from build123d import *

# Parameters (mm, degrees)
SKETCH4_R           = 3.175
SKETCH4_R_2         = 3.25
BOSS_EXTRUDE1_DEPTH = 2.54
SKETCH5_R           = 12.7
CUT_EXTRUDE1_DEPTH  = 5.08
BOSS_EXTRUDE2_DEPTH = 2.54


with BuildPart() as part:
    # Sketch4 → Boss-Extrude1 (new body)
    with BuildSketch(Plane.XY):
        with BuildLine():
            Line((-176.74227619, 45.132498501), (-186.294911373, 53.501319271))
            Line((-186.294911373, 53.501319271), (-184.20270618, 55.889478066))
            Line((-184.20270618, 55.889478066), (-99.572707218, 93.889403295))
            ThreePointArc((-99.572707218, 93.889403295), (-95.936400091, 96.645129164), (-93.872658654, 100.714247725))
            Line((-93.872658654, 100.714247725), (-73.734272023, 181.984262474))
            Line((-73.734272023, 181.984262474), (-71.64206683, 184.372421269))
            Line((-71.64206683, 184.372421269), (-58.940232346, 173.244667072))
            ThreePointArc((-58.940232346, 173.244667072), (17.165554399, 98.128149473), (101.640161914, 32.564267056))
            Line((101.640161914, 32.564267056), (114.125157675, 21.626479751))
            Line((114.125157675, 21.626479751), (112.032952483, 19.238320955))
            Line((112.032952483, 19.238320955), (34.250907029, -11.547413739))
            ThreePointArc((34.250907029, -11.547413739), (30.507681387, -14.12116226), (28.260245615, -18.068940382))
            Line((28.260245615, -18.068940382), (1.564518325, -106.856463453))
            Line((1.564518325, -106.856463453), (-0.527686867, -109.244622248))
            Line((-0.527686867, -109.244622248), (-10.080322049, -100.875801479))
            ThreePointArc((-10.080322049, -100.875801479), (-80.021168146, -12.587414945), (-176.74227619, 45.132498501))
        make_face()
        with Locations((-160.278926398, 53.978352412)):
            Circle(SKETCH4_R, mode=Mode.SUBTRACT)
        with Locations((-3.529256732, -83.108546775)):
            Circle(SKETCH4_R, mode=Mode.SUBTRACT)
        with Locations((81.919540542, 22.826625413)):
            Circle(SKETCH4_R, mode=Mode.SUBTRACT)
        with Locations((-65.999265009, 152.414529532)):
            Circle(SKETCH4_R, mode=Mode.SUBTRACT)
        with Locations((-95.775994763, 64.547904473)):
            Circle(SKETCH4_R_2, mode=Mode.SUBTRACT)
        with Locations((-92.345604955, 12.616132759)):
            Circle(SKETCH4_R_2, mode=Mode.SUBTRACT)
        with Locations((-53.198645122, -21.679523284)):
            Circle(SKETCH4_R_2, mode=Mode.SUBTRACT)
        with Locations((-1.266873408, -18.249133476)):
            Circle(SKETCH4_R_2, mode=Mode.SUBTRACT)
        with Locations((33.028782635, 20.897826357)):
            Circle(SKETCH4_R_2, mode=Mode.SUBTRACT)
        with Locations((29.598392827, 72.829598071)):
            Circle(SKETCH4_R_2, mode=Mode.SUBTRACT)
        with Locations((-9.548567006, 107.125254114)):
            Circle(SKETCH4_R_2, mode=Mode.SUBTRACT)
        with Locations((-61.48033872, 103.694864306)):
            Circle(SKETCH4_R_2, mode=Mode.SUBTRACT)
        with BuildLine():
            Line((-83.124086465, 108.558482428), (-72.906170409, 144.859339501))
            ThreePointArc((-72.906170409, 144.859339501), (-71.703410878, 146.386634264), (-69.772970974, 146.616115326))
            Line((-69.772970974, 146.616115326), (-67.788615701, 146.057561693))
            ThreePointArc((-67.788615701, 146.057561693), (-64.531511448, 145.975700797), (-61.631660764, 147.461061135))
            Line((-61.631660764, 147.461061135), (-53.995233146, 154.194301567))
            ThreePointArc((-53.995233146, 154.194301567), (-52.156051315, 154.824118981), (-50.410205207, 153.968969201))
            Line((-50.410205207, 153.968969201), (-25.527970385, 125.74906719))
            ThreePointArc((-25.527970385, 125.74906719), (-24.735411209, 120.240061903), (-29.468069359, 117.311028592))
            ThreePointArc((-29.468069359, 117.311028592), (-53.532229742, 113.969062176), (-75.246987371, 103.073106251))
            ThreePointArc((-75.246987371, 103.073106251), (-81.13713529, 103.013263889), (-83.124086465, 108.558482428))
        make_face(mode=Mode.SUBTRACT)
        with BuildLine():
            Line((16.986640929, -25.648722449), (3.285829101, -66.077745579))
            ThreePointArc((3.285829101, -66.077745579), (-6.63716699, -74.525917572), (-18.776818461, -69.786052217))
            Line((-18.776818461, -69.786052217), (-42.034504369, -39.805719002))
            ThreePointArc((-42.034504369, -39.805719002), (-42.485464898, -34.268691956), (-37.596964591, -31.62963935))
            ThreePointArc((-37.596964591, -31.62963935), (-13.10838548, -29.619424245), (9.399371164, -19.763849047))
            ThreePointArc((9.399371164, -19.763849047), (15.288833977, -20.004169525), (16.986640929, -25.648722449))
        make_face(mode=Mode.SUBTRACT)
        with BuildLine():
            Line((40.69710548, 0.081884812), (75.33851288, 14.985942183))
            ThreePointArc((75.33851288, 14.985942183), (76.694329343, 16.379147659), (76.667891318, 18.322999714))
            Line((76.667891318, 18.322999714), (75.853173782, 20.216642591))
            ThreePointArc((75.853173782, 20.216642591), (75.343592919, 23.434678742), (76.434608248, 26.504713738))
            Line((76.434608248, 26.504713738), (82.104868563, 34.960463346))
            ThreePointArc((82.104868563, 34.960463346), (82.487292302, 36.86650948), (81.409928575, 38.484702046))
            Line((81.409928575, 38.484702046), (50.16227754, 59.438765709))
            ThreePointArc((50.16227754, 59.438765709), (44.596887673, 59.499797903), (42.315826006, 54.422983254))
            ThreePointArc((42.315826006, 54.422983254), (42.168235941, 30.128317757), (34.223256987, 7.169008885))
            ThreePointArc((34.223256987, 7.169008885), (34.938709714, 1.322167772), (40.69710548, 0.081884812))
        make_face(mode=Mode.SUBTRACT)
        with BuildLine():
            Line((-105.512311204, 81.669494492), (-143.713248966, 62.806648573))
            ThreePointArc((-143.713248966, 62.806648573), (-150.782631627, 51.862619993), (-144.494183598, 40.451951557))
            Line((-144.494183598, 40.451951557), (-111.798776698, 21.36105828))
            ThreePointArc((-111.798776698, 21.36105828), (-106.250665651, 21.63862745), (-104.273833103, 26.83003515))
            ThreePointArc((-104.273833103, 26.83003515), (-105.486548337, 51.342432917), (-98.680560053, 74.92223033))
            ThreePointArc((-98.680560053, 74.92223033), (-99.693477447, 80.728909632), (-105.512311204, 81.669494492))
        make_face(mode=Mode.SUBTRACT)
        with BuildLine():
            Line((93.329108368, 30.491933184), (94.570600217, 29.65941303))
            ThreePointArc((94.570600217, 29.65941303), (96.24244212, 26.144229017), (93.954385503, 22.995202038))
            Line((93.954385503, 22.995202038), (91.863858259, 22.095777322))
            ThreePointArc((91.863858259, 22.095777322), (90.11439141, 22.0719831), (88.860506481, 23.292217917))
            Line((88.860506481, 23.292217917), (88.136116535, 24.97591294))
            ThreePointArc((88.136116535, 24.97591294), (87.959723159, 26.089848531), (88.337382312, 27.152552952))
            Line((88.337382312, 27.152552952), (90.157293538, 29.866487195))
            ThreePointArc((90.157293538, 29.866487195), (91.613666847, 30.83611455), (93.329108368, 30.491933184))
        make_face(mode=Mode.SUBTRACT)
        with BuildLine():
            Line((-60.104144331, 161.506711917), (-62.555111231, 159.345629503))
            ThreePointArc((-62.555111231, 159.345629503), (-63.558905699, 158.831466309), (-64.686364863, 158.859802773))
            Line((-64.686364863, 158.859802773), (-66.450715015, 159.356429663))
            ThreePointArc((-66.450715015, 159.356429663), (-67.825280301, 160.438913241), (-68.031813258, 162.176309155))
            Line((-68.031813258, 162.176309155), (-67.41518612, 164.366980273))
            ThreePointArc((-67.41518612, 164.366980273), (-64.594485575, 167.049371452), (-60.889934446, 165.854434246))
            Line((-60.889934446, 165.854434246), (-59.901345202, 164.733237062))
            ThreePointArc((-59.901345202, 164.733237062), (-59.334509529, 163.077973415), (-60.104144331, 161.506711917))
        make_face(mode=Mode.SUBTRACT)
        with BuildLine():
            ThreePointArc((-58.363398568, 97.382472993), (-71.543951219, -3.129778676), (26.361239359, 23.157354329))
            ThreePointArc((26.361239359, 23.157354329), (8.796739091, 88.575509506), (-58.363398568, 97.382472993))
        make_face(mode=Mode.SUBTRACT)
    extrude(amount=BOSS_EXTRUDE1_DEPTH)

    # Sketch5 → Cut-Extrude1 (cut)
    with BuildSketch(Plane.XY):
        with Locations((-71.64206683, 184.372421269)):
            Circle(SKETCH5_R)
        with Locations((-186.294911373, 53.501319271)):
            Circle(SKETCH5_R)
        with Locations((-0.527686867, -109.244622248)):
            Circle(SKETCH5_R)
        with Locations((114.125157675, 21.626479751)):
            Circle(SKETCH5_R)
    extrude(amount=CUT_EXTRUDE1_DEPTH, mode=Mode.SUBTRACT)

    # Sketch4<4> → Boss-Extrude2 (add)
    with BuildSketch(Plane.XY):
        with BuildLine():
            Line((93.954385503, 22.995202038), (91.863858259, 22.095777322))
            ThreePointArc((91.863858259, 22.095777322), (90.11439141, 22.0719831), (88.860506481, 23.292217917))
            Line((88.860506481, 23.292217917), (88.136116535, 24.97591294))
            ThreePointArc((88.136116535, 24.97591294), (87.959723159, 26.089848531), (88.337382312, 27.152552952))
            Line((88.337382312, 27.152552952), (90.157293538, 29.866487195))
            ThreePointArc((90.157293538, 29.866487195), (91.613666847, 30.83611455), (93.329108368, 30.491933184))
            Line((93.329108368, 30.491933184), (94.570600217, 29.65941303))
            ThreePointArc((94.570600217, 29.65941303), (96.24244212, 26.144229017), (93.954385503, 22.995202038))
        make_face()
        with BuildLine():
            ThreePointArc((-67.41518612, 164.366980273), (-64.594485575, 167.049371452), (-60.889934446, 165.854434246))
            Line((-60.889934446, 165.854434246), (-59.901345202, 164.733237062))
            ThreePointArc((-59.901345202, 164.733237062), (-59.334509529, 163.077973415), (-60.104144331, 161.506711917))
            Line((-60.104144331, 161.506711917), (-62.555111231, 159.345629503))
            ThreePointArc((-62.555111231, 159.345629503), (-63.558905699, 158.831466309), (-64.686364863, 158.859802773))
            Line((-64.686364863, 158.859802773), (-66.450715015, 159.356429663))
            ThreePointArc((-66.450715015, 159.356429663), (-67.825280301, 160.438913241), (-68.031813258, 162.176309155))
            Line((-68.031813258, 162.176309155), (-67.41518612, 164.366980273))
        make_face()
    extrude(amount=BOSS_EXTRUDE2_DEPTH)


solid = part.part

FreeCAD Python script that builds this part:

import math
import FreeCAD as App
import Part
import Sketcher

V = App.Vector
Q = App.Units.Quantity

doc = App.newDocument("Part")
body = doc.addObject("PartDesign::Body", "Body")

# Sketch on XY plane
sketch1 = doc.addObject("Sketcher::SketchObject", "Sketch")
body.addObject(sketch1)
sketch1.AttachmentSupport = (doc.XY_Plane, [""])
sketch1.MapMode = "FlatFace"
sketch1.addGeometry([
    Part.LineSegment(V(-186.294911, 53.501319, 0), V(-176.742276, 45.132499, 0)),  # 0
    Part.ArcOfCircle(Part.Circle(V(-285.728698, -247.393374, 0), V(0, 0, 1), 312.168906), math.radians(27.99234), math.radians(69.566106)),  # 1
    Part.LineSegment(V(-10.080322, -100.875801, 0), V(-0.527687, -109.244622, 0)),  # 2
    Part.LineSegment(V(-0.527687, -109.244622, 0), V(1.564518, -106.856463, 0)),  # 3
    Part.LineSegment(V(1.564518, -106.856463, 0), V(28.260246, -18.06894, 0)),  # 4
    Part.ArcOfCircle(Part.Circle(V(37.989965, -20.994373, 0), V(0, 0, 1), 10.16), math.radians(111.593405), math.radians(163.265554)),  # 5
    Part.LineSegment(V(34.250907, -11.547414, 0), V(112.032952, 19.238321, 0)),  # 6
    Part.LineSegment(V(112.032952, 19.238321, 0), V(114.125158, 21.62648, 0)),  # 7
    Part.LineSegment(V(114.125158, 21.62648, 0), V(101.640162, 32.564267, 0)),  # 8
    Part.ArcOfCircle(Part.Circle(V(610.469338, 775.357923, 0), V(0, 0, 1), 900.360787), math.radians(-138.029596), math.radians(-124.411958)),  # 9
    Part.LineSegment(V(-58.940232, 173.244667, 0), V(-71.642067, 184.372421, 0)),  # 10
    Part.LineSegment(V(-71.642067, 184.372421, 0), V(-73.734272, 181.984262, 0)),  # 11
    Part.LineSegment(V(-73.734272, 181.984262, 0), V(-93.872659, 100.714248, 0)),  # 12
    Part.ArcOfCircle(Part.Circle(V(-103.734399, 103.157948, 0), V(0, 0, 1), 10.16), math.radians(-65.819325), math.radians(-13.917332)),  # 13
    Part.LineSegment(V(-99.572707, 93.889403, 0), V(-184.202706, 55.889478, 0)),  # 14
    Part.LineSegment(V(-184.202706, 55.889478, 0), V(-186.294911, 53.501319, 0)),  # 15
    Part.Circle(V(-3.529257, -83.108547, 0), V(0, 0, 1), 3.175),  # 16
    Part.LineSegment(V(16.986641, -25.648722, 0), V(3.285829, -66.077746, 0)),  # 17
    Part.ArcOfCircle(Part.Circle(V(-8.742264, -62.001599, 0), V(0, 0, 1), 12.7), math.radians(-142.196951), math.radians(-18.720777)),  # 18
    Part.LineSegment(V(-18.776818, -69.786052, 0), V(-42.034504, -39.805719, 0)),  # 19
    Part.ArcOfCircle(Part.Circle(V(-38.020683, -36.691938, 0), V(0, 0, 1), 5.08), math.radians(85.215454), math.radians(217.803049)),  # 20
    Part.ArcOfCircle(Part.Circle(V(-31.373606, 42.722865, 0), V(0, 0, 1), 74.6125), math.radians(-94.784546), math.radians(-56.875297)),  # 21
    Part.ArcOfCircle(Part.Circle(V(12.175404, -24.018264, 0), V(0, 0, 1), 5.08), math.radians(-18.720777), math.radians(123.124703)),  # 22
    Part.Circle(V(81.919541, 22.826625, 0), V(0, 0, 1), 3.175),  # 23
    Part.LineSegment(V(93.329108, 30.491933, 0), V(94.5706, 29.659413, 0)),  # 24
    Part.ArcOfCircle(Part.Circle(V(92.448626, 26.495029, 0), V(0, 0, 1), 3.81), math.radians(-66.720777), math.radians(56.154968)),  # 25
    Part.LineSegment(V(93.954386, 22.995202, 0), V(91.863858, 22.095777, 0)),  # 26
    Part.ArcOfCircle(Part.Circle(V(90.960403, 24.195674, 0), V(0, 0, 1), 2.286), math.radians(-156.720777), math.radians(-66.720777)),  # 27
    Part.LineSegment(V(88.860506, 23.292218, 0), V(88.136117, 24.975913, 0)),  # 28
    Part.ArcOfCircle(Part.Circle(V(90.236013, 25.879369, 0), V(0, 0, 1), 2.286), math.radians(146.154968), math.radians(203.279223)),  # 29
    Part.LineSegment(V(88.337382, 27.152553, 0), V(90.157294, 29.866487, 0)),  # 30
    Part.ArcOfCircle(Part.Circle(V(92.055924, 28.593303, 0), V(0, 0, 1), 2.286), math.radians(56.154968), math.radians(146.154968)),  # 31
    Part.Circle(V(33.028783, 20.897826, 0), V(0, 0, 1), 3.25),  # 32
    Part.ArcOfCircle(Part.Circle(V(38.689426, 4.748321, 0), V(0, 0, 1), 5.08), math.radians(151.542066), math.radians(293.279223)),  # 33
    Part.ArcOfCircle(Part.Circle(V(-31.373606, 42.722865, 0), V(0, 0, 1), 74.6125), math.radians(-28.457934), math.radians(9.021888)),  # 34
    Part.ArcOfCircle(Part.Circle(V(47.332979, 55.219587, 0), V(0, 0, 1), 5.08), math.radians(56.154968), math.radians(189.021888)),  # 35
    Part.LineSegment(V(50.162278, 59.438766, 0), V(81.409929, 38.484702, 0)),  # 36
    Part.ArcOfCircle(Part.Circle(V(79.995279, 36.375113, 0), V(0, 0, 1), 2.54), math.radians(-33.845032), math.radians(56.154968)),  # 37
    Part.LineSegment(V(82.104869, 34.960463, 0), V(76.434608, 26.504714, 0)),  # 38
    Part.ArcOfCircle(Part.Circle(V(81.919541, 22.826625, 0), V(0, 0, 1), 6.604), math.radians(146.154968), math.radians(203.279223)),  # 39
    Part.LineSegment(V(75.853174, 20.216643, 0), V(76.667891, 18.323, 0)),  # 40
    Part.ArcOfCircle(Part.Circle(V(74.334673, 17.31916, 0), V(0, 0, 1), 2.54), math.radians(-66.720777), math.radians(23.279223)),  # 41
    Part.LineSegment(V(75.338513, 14.985942, 0), V(40.697105, 0.081885, 0)),  # 42
    Part.Circle(V(-1.266873, -18.249133, 0), V(0, 0, 1), 3.25),  # 43
    Part.Circle(V(-53.198645, -21.679523, 0), V(0, 0, 1), 3.25),  # 44
    Part.Circle(V(-92.345605, 12.616133, 0), V(0, 0, 1), 3.25),  # 45
    Part.ArcOfCircle(Part.Circle(V(-31.373606, 42.722865, 0), V(0, 0, 1), 60.96), math.radians(-18.720783), math.radians(116.279215)),  # 46
    Part.ArcOfCircle(Part.Circle(V(-31.373606, 42.722865, 0), V(0, 0, 1), 60.96), math.radians(116.279215), math.radians(341.279217)),  # 47
    Part.Circle(V(29.598393, 72.829598, 0), V(0, 0, 1), 3.25),  # 48
    Part.Circle(V(-9.548567, 107.125254, 0), V(0, 0, 1), 3.25),  # 49
    Part.Circle(V(-95.775995, 64.547904, 0), V(0, 0, 1), 3.25),  # 50
    Part.Circle(V(-61.480339, 103.694864, 0), V(0, 0, 1), 3.25),  # 51
    Part.ArcOfCircle(Part.Circle(V(-103.263161, 77.114528, 0), V(0, 0, 1), 5.08), math.radians(-25.566257), math.radians(116.279223)),  # 52
    Part.ArcOfCircle(Part.Circle(V(-31.373606, 42.722865, 0), V(0, 0, 1), 74.6125), math.radians(154.433743), math.radians(192.298507)),  # 53
    Part.ArcOfCircle(Part.Circle(V(-109.237253, 25.74797, 0), V(0, 0, 1), 5.08), math.radians(-120.280715), math.radians(12.298507)),  # 54
    Part.LineSegment(V(-111.798777, 21.361058, 0), V(-144.494184, 40.451952, 0)),  # 55
    Part.ArcOfCircle(Part.Circle(V(-138.090374, 51.419231, 0), V(0, 0, 1), 12.7), math.radians(116.279223), math.radians(239.719285)),  # 56
    Part.LineSegment(V(-143.713249, 62.806649, 0), V(-105.512311, 81.669494, 0)),  # 57
    Part.Circle(V(-160.278926, 53.978352, 0), V(0, 0, 1), 3.175),  # 58
    Part.LineSegment(V(-83.124086, 108.558482, 0), V(-72.90617, 144.85934, 0)),  # 59
    Part.ArcOfCircle(Part.Circle(V(-70.461183, 144.171128, 0), V(0, 0, 1), 2.54), math.radians(74.279223), math.radians(164.279223)),  # 60
    Part.LineSegment(V(-69.772971, 146.616115, 0), V(-67.788616, 146.057562, 0)),  # 61
    Part.ArcOfCircle(Part.Circle(V(-65.999265, 152.41453, 0), V(0, 0, 1), 6.604), math.radians(-105.720777), math.radians(-48.596522)),  # 62
    Part.LineSegment(V(-61.631661, 147.461061, 0), V(-53.995233, 154.194302, 0)),  # 63
    Part.ArcOfCircle(Part.Circle(V(-52.315385, 152.289121, 0), V(0, 0, 1), 2.54), math.radians(41.403478), math.radians(131.403478)),  # 64
    Part.LineSegment(V(-50.410205, 153.968969, 0), V(-25.52797, 125.749067, 0)),  # 65
    Part.ArcOfCircle(Part.Circle(V(-29.338331, 122.389372, 0), V(0, 0, 1), 5.08), math.radians(-91.463442), math.radians(41.403478)),  # 66
    Part.ArcOfCircle(Part.Circle(V(-31.373606, 42.722865, 0), V(0, 0, 1), 74.6125), math.radians(88.536558), math.radians(126.016379)),  # 67
    Part.ArcOfCircle(Part.Circle(V(-78.234111, 107.182059, 0), V(0, 0, 1), 5.08), math.radians(164.279223), math.radians(306.016379)),  # 68
    Part.Circle(V(-65.999265, 152.41453, 0), V(0, 0, 1), 3.175),  # 69
    Part.LineSegment(V(-60.104144, 161.506712, 0), V(-62.555111, 159.34563, 0)),  # 70
    Part.ArcOfCircle(Part.Circle(V(-64.066974, 161.060292, 0), V(0, 0, 1), 2.286), math.radians(-105.720777), math.radians(-48.596522)),  # 71
    Part.LineSegment(V(-64.686365, 158.859803, 0), V(-66.450715, 159.35643, 0)),  # 72
    Part.ArcOfCircle(Part.Circle(V(-65.831324, 161.556919, 0), V(0, 0, 1), 2.286), math.radians(164.279223), math.radians(254.279223)),  # 73
    Part.LineSegment(V(-68.031813, 162.176309, 0), V(-67.415186, 164.36698, 0)),  # 74
    Part.ArcOfCircle(Part.Circle(V(-63.747705, 163.334663, 0), V(0, 0, 1), 3.81), math.radians(41.403478), math.radians(164.279223)),  # 75
    Part.LineSegment(V(-60.889934, 165.854434, 0), V(-59.901345, 164.733237, 0)),  # 76
    Part.ArcOfCircle(Part.Circle(V(-61.616007, 163.221374, 0), V(0, 0, 1), 2.286), math.radians(-48.596522), math.radians(41.403478)),  # 77
], False)
sketch1.addConstraint([
    Sketcher.Constraint("Coincident", 0, 2, 1, 2),
    Sketcher.Constraint("Coincident", 1, 1, 2, 1),
    Sketcher.Constraint("Coincident", 2, 2, 3, 1),
    Sketcher.Constraint("Coincident", 3, 2, 4, 1),
    Sketcher.Constraint("Coincident", 4, 2, 5, 2),
    Sketcher.Constraint("Coincident", 5, 1, 6, 1),
    Sketcher.Constraint("Coincident", 6, 2, 7, 1),
    Sketcher.Constraint("Coincident", 7, 2, 8, 1),
    Sketcher.Constraint("Coincident", 8, 2, 9, 2),
    Sketcher.Constraint("Coincident", 9, 1, 10, 1),
    Sketcher.Constraint("Coincident", 10, 2, 11, 1),
    Sketcher.Constraint("Coincident", 11, 2, 12, 1),
    Sketcher.Constraint("Coincident", 12, 2, 13, 2),
    Sketcher.Constraint("Coincident", 13, 1, 14, 1),
    Sketcher.Constraint("Coincident", 14, 2, 15, 1),
    Sketcher.Constraint("Coincident", 15, 2, 0, 1),
    Sketcher.Constraint("Coincident", 17, 2, 18, 2),
    Sketcher.Constraint("Coincident", 18, 1, 19, 1),
    Sketcher.Constraint("Coincident", 19, 2, 20, 2),
    Sketcher.Constraint("Coincident", 20, 1, 21, 1),
    Sketcher.Constraint("Coincident", 21, 2, 22, 2),
    Sketcher.Constraint("Coincident", 22, 1, 17, 1),
    Sketcher.Constraint("Coincident", 24, 2, 25, 2),
    Sketcher.Constraint("Coincident", 25, 1, 26, 1),
    Sketcher.Constraint("Coincident", 26, 2, 27, 2),
    Sketcher.Constraint("Coincident", 27, 1, 28, 1),
    Sketcher.Constraint("Coincident", 28, 2, 29, 2),
    Sketcher.Constraint("Coincident", 29, 1, 30, 1),
    Sketcher.Constraint("Coincident", 30, 2, 31, 2),
    Sketcher.Constraint("Coincident", 31, 1, 24, 1),
    Sketcher.Constraint("Coincident", 33, 1, 34, 1),
    Sketcher.Constraint("Coincident", 34, 2, 35, 2),
    Sketcher.Constraint("Coincident", 35, 1, 36, 1),
    Sketcher.Constraint("Coincident", 36, 2, 37, 2),
    Sketcher.Constraint("Coincident", 37, 1, 38, 1),
    Sketcher.Constraint("Coincident", 38, 2, 39, 1),
    Sketcher.Constraint("Coincident", 39, 2, 40, 1),
    Sketcher.Constraint("Coincident", 40, 2, 41, 2),
    Sketcher.Constraint("Coincident", 41, 1, 42, 1),
    Sketcher.Constraint("Coincident", 42, 2, 33, 2),
    Sketcher.Constraint("Coincident", 46, 1, 47, 2),
    Sketcher.Constraint("Coincident", 47, 1, 46, 2),
    Sketcher.Constraint("Coincident", 52, 1, 53, 1),
    Sketcher.Constraint("Coincident", 53, 2, 54, 2),
    Sketcher.Constraint("Coincident", 54, 1, 55, 1),
    Sketcher.Constraint("Coincident", 55, 2, 56, 2),
    Sketcher.Constraint("Coincident", 56, 1, 57, 1),
    Sketcher.Constraint("Coincident", 57, 2, 52, 2),
    Sketcher.Constraint("Coincident", 59, 2, 60, 2),
    Sketcher.Constraint("Coincident", 60, 1, 61, 1),
    Sketcher.Constraint("Coincident", 61, 2, 62, 1),
    Sketcher.Constraint("Coincident", 62, 2, 63, 1),
    Sketcher.Constraint("Coincident", 63, 2, 64, 2),
    Sketcher.Constraint("Coincident", 64, 1, 65, 1),
    Sketcher.Constraint("Coincident", 65, 2, 66, 2),
    Sketcher.Constraint("Coincident", 66, 1, 67, 1),
    Sketcher.Constraint("Coincident", 67, 2, 68, 2),
    Sketcher.Constraint("Coincident", 68, 1, 59, 1),
    Sketcher.Constraint("Coincident", 70, 2, 71, 2),
    Sketcher.Constraint("Coincident", 71, 1, 72, 1),
    Sketcher.Constraint("Coincident", 72, 2, 73, 2),
    Sketcher.Constraint("Coincident", 73, 1, 74, 1),
    Sketcher.Constraint("Coincident", 74, 2, 75, 2),
    Sketcher.Constraint("Coincident", 75, 1, 76, 1),
    Sketcher.Constraint("Coincident", 76, 2, 77, 2),
    Sketcher.Constraint("Coincident", 77, 1, 70, 1),
    Sketcher.Constraint("Coincident", 34, 3, 21, 3),
    Sketcher.Constraint("Coincident", 39, 3, 23, 3),
    Sketcher.Constraint("Coincident", 46, 3, 21, 3),
    Sketcher.Constraint("Coincident", 53, 3, 21, 3),
    Sketcher.Constraint("Coincident", 67, 3, 21, 3),
    Sketcher.Constraint("Coincident", 69, 3, 62, 3),
    Sketcher.Constraint("Radius", 5, Q("0.4 in")),
    Sketcher.Constraint("Radius", 13, Q("0.4 in")),
    Sketcher.Constraint("Radius", 18, Q("0.5 in")),
    Sketcher.Constraint("Radius", 20, Q("0.2 in")),
    Sketcher.Constraint("Radius", 22, Q("0.2 in")),
    Sketcher.Constraint("Radius", 33, Q("0.2 in")),
    Sketcher.Constraint("Radius", 35, Q("0.2 in")),
    Sketcher.Constraint("Radius", 37, Q("0.1 in")),
    Sketcher.Constraint("Radius", 41, Q("0.1 in")),
    Sketcher.Constraint("Radius", 46, Q("2.4 in")),
    Sketcher.Constraint("Radius", 47, Q("2.4 in")),
    Sketcher.Constraint("Radius", 52, Q("0.2 in")),
    Sketcher.Constraint("Radius", 54, Q("0.2 in")),
    Sketcher.Constraint("Radius", 56, Q("0.5 in")),
    Sketcher.Constraint("Radius", 60, Q("0.1 in")),
    Sketcher.Constraint("Radius", 64, Q("0.1 in")),
    Sketcher.Constraint("Radius", 66, Q("0.2 in")),
    Sketcher.Constraint("Radius", 68, Q("0.2 in")),
    Sketcher.Constraint("Diameter", 16, Q("0.25 in")),
    Sketcher.Constraint("Diameter", 23, Q("0.25 in")),
    Sketcher.Constraint("Diameter", 58, Q("0.25 in")),
    Sketcher.Constraint("Diameter", 69, Q("0.25 in")),
    Sketcher.Constraint("Radius", 25, Q("0.15 in")),
    Sketcher.Constraint("Radius", 27, Q("0.09 in")),
    Sketcher.Constraint("Radius", 29, Q("0.09 in")),
    Sketcher.Constraint("Radius", 31, Q("0.09 in")),
    Sketcher.Constraint("Radius", 39, Q("0.26 in")),
    Sketcher.Constraint("Radius", 62, Q("0.26 in")),
    Sketcher.Constraint("Radius", 71, Q("0.09 in")),
    Sketcher.Constraint("Radius", 73, Q("0.09 in")),
    Sketcher.Constraint("Radius", 75, Q("0.15 in")),
    Sketcher.Constraint("Radius", 77, Q("0.09 in")),
    Sketcher.Constraint("Radius", 21, Q("2.9375 in")),
    Sketcher.Constraint("Radius", 34, Q("2.9375 in")),
    Sketcher.Constraint("Radius", 53, Q("2.9375 in")),
    Sketcher.Constraint("Radius", 67, Q("2.9375 in")),
    Sketcher.Constraint("Distance", 0, Q("0.5 in")),
    Sketcher.Constraint("Distance", 2, Q("0.5 in")),
    Sketcher.Constraint("Diameter", 32, 6.5),
    Sketcher.Constraint("Diameter", 43, 6.5),
    Sketcher.Constraint("Diameter", 44, 6.5),
    Sketcher.Constraint("Diameter", 45, 6.5),
    Sketcher.Constraint("Diameter", 48, 6.5),
    Sketcher.Constraint("Diameter", 49, 6.5),
    Sketcher.Constraint("Diameter", 50, 6.5),
    Sketcher.Constraint("Diameter", 51, 6.5),
    Sketcher.Constraint("Distance", 3, Q("0.125 in")),
    Sketcher.Constraint("Distance", 7, Q("0.125 in")),
    Sketcher.Constraint("Distance", 11, Q("0.125 in")),
    Sketcher.Constraint("Distance", 15, Q("0.125 in")),
    Sketcher.Constraint("Radius", 1, 312.168906),
    Sketcher.Constraint("Radius", 9, 900.360787),
    Sketcher.Constraint("Distance", 4, 92.714002),
    Sketcher.Constraint("Distance", 26, 2.275801),
    Sketcher.Constraint("Distance", 74, 2.275801),
    Sketcher.Constraint("DistanceX", 13, 3, -1, 1, 103.734399),
    Sketcher.Constraint("DistanceY", 18, 3, -1, 1, 62.001599),
    Sketcher.Constraint("DistanceY", -1, 1, 48, 3, 72.829598),
    Sketcher.Constraint("DistanceY", -1, 1, 0, 2, 45.132499),
    Sketcher.Constraint("DistanceY", 1, 1, -1, 1, 100.875801),
    Sketcher.Constraint("DistanceX", -1, 1, 24, 2, 94.5706),
    Sketcher.Constraint("DistanceY", -1, 1, 40, 2, 18.323),
    Sketcher.Constraint("DistanceX", 47, 1, -1, 1, 58.363399),
    Sketcher.Constraint("DistanceY", -1, 1, 63, 2, 154.194302),
    Sketcher.Constraint("Distance", 12, 83.727952),
    Sketcher.Constraint("Distance", 19, 37.94391),
    Sketcher.Constraint("Distance", 24, 1.494788),
    Sketcher.Constraint("Distance", 36, 37.622978),
    Sketcher.Constraint("Distance", 38, 10.180941),
    Sketcher.Constraint("Distance", 42, 37.711511),
    Sketcher.Constraint("Distance", 57, 42.604209),
    Sketcher.Constraint("Distance", 59, 37.711511),
    Sketcher.Constraint("Distance", 63, 10.180941),
    Sketcher.Constraint("Distance", 65, 37.622978),
    Sketcher.Constraint("Distance", 76, 1.494788),
    Sketcher.Constraint("DistanceX", -1, 1, 9, 3, 610.469338),
    Sketcher.Constraint("DistanceX", -1, 1, 23, 3, 81.919541),
    Sketcher.Constraint("DistanceY", -1, 1, 25, 3, 26.495029),
    Sketcher.Constraint("DistanceY", -1, 1, 29, 3, 25.879369),
    Sketcher.Constraint("DistanceY", -1, 1, 33, 3, 4.748321),
    Sketcher.Constraint("DistanceX", -1, 1, 35, 3, 47.332979),
    Sketcher.Constraint("DistanceX", -1, 1, 37, 3, 79.995279),
    Sketcher.Constraint("DistanceY", -1, 1, 41, 3, 17.31916),
    Sketcher.Constraint("DistanceX", 51, 3, -1, 1, 61.480339),
    Sketcher.Constraint("DistanceX", 52, 3, -1, 1, 103.263161),
    Sketcher.Constraint("DistanceY", -1, 1, 54, 3, 25.74797),
    Sketcher.Constraint("DistanceY", -1, 1, 56, 3, 51.419231),
    Sketcher.Constraint("DistanceY", -1, 1, 62, 3, 152.41453),
    Sketcher.Constraint("DistanceY", -1, 1, 64, 3, 152.289121),
    Sketcher.Constraint("DistanceX", 66, 3, -1, 1, 29.338331),
    Sketcher.Constraint("DistanceY", -1, 1, 66, 3, 122.389372),
    Sketcher.Constraint("DistanceX", 68, 3, -1, 1, 78.234111),
    Sketcher.Constraint("DistanceY", -1, 1, 68, 3, 107.182059),
    Sketcher.Constraint("DistanceY", -1, 1, 71, 3, 161.060292),
    Sketcher.Constraint("DistanceY", -1, 1, 73, 3, 161.556919),
    Sketcher.Constraint("DistanceX", -1, 1, 3, 2, 1.564518),
    Sketcher.Constraint("DistanceY", 4, 2, -1, 1, 18.06894),
    Sketcher.Constraint("DistanceY", -1, 1, 6, 2, 19.238321),
    Sketcher.Constraint("DistanceY", -1, 1, 7, 2, 21.62648),
    Sketcher.Constraint("DistanceX", -1, 1, 8, 2, 101.640162),
    Sketcher.Constraint("DistanceY", -1, 1, 10, 2, 184.372421),
    Sketcher.Constraint("DistanceX", 12, 2, -1, 1, 93.872659),
    Sketcher.Constraint("DistanceY", -1, 1, 14, 2, 55.889478),
    Sketcher.Constraint("DistanceX", 15, 2, -1, 1, 186.294911),
    Sketcher.Constraint("DistanceY", -1, 1, 15, 2, 53.501319),
    Sketcher.Constraint("DistanceX", -1, 1, 17, 2, 3.285829),
    Sketcher.Constraint("DistanceX", 18, 1, -1, 1, 18.776818),
    Sketcher.Constraint("DistanceY", 19, 2, -1, 1, 39.805719),
    Sketcher.Constraint("DistanceY", 20, 1, -1, 1, 31.629639),
    Sketcher.Constraint("DistanceX", -1, 1, 21, 2, 9.399371),
    Sketcher.Constraint("DistanceX", -1, 1, 22, 1, 16.986641),
    Sketcher.Constraint("DistanceX", -1, 1, 26, 2, 91.863858),
    Sketcher.Constraint("DistanceX", -1, 1, 31, 1, 93.329108),
    Sketcher.Constraint("DistanceY", -1, 1, 33, 1, 7.169009),
    Sketcher.Constraint("DistanceX", -1, 1, 36, 2, 81.409929),
    Sketcher.Constraint("DistanceX", -1, 1, 37, 1, 82.104869),
    Sketcher.Constraint("DistanceX", -1, 1, 38, 2, 76.434608),
    Sketcher.Constraint("DistanceX", -1, 1, 40, 2, 76.667891),
    Sketcher.Constraint("DistanceX", -1, 1, 46, 1, 26.361239),
    Sketcher.Constraint("DistanceX", 52, 1, -1, 1, 98.68056),
    Sketcher.Constraint("DistanceY", -1, 1, 54, 1, 21.361058),
    Sketcher.Constraint("DistanceY", -1, 1, 55, 2, 40.451952),
    Sketcher.Constraint("DistanceX", 56, 1, -1, 1, 143.713249),
    Sketcher.Constraint("DistanceY", -1, 1, 56, 1, 62.806649),
    Sketcher.Constraint("DistanceX", 59, 2, -1, 1, 72.90617),
    Sketcher.Constraint("DistanceY", -1, 1, 59, 2, 144.85934),
    Sketcher.Constraint("DistanceX", 60, 1, -1, 1, 69.772971),
    Sketcher.Constraint("DistanceY", -1, 1, 61, 2, 146.057562),
    Sketcher.Constraint("DistanceX", 62, 2, -1, 1, 61.631661),
    Sketcher.Constraint("DistanceY", -1, 1, 62, 2, 147.461061),
    Sketcher.Constraint("DistanceY", -1, 1, 64, 1, 153.968969),
    Sketcher.Constraint("DistanceX", 66, 1, -1, 1, 29.468069),
    Sketcher.Constraint("DistanceX", 70, 2, -1, 1, 62.555111),
    Sketcher.Constraint("DistanceY", -1, 1, 70, 2, 159.34563),
    Sketcher.Constraint("DistanceY", -1, 1, 72, 2, 159.35643),
    Sketcher.Constraint("DistanceY", -1, 1, 73, 1, 162.176309),
    Sketcher.Constraint("DistanceY", -1, 1, 74, 2, 164.36698),
    Sketcher.Constraint("DistanceY", -1, 1, 77, 1, 161.506712),
    Sketcher.Constraint("Distance", 6, 83.652902),
    Sketcher.Constraint("Distance", 8, 16.598503),
    Sketcher.Constraint("Distance", 10, 16.886785),
    Sketcher.Constraint("Distance", 14, 92.769774),
    Sketcher.Constraint("Distance", 17, 42.687447),
    Sketcher.Constraint("Distance", 28, 1.832913),
    Sketcher.Constraint("Distance", 30, 3.267647),
    Sketcher.Constraint("Distance", 40, 2.061467),
    Sketcher.Constraint("Distance", 61, 2.061467),
    Sketcher.Constraint("Distance", 70, 3.267647),
    Sketcher.Constraint("Distance", 72, 1.832913),
    Sketcher.Constraint("DistanceX", 1, 3, -1, 1, 285.728698),
    Sketcher.Constraint("DistanceX", -1, 1, 5, 3, 37.989965),
    Sketcher.Constraint("DistanceY", 5, 3, -1, 1, 20.994373),
    Sketcher.Constraint("DistanceY", -1, 1, 9, 3, 775.357923),
    Sketcher.Constraint("DistanceY", -1, 1, 13, 3, 103.157948),
    Sketcher.Constraint("DistanceX", 16, 3, -1, 1, 3.529257),
    Sketcher.Constraint("DistanceY", 16, 3, -1, 1, 83.108547),
    Sketcher.Constraint("DistanceX", 18, 3, -1, 1, 8.742264),
    Sketcher.Constraint("DistanceY", -1, 1, 23, 3, 22.826625),
    Sketcher.Constraint("DistanceX", -1, 1, 25, 3, 92.448626),
    Sketcher.Constraint("DistanceX", -1, 1, 27, 3, 90.960403),
    Sketcher.Constraint("DistanceY", -1, 1, 27, 3, 24.195674),
    Sketcher.Constraint("DistanceX", -1, 1, 29, 3, 90.236013),
    Sketcher.Constraint("DistanceX", -1, 1, 31, 3, 92.055924),
    Sketcher.Constraint("DistanceX", -1, 1, 32, 3, 33.028783),
    Sketcher.Constraint("DistanceY", -1, 1, 32, 3, 20.897826),
    Sketcher.Constraint("DistanceX", 43, 3, -1, 1, 1.266873),
    Sketcher.Constraint("DistanceY", 43, 3, -1, 1, 18.249133),
    Sketcher.Constraint("DistanceX", 44, 3, -1, 1, 53.198645),
    Sketcher.Constraint("DistanceY", 44, 3, -1, 1, 21.679523),
    Sketcher.Constraint("DistanceX", 45, 3, -1, 1, 92.345605),
    Sketcher.Constraint("DistanceY", -1, 1, 45, 3, 12.616133),
    Sketcher.Constraint("DistanceX", -1, 1, 48, 3, 29.598393),
    Sketcher.Constraint("DistanceX", 49, 3, -1, 1, 9.548567),
    Sketcher.Constraint("DistanceY", -1, 1, 49, 3, 107.125254),
    Sketcher.Constraint("DistanceX", 50, 3, -1, 1, 95.775995),
    Sketcher.Constraint("DistanceY", -1, 1, 50, 3, 64.547904),
    Sketcher.Constraint("DistanceY", -1, 1, 51, 3, 103.694864),
    Sketcher.Constraint("DistanceX", 58, 3, -1, 1, 160.278926),
    Sketcher.Constraint("DistanceY", -1, 1, 58, 3, 53.978352),
    Sketcher.Constraint("DistanceX", 73, 3, -1, 1, 65.831324),
    Sketcher.Constraint("DistanceX", 75, 3, -1, 1, 63.747705),
    Sketcher.Constraint("DistanceX", 77, 3, -1, 1, 61.616007),
    Sketcher.Constraint("DistanceX", 10, 2, -1, 1, 71.642067),
    Sketcher.Constraint("DistanceX", -1, 1, 27, 1, 88.860506),
    Sketcher.Constraint("DistanceX", -1, 1, 29, 1, 88.337382),
    Sketcher.Constraint("DistanceX", -1, 1, 34, 2, 42.315826),
    Sketcher.Constraint("DistanceX", -1, 1, 41, 1, 75.338513),
    Sketcher.Constraint("DistanceX", 53, 2, -1, 1, 104.273833),
    Sketcher.Constraint("DistanceX", 67, 2, -1, 1, 75.246987),
    Sketcher.Constraint("DistanceX", 75, 1, -1, 1, 60.889934),
])
pad1 = doc.addObject("PartDesign::Pad", "Pad")
body.addObject(pad1)
pad1.Profile = sketch1
pad1.Length = Q("0.1 in")

# Sketch on XY plane
sketch2 = doc.addObject("Sketcher::SketchObject", "Sketch001")
body.addObject(sketch2)
sketch2.AttachmentSupport = (doc.XY_Plane, [""])
sketch2.MapMode = "FlatFace"
sketch2.addGeometry([
    Part.Circle(V(-72, 184, 0), V(0, 0, 1), 13),
    Part.Circle(V(-186, 54, 0), V(0, 0, 1), 13),
    Part.Circle(V(-1, -109, 0), V(0, 0, 1), 13),
    Part.Circle(V(114, 22, 0), V(0, 0, 1), 13),
], False)
sketch2.addConstraint([
    Sketcher.Constraint("Equal", 0, 1),
    Sketcher.Constraint("Equal", 1, 2),
    Sketcher.Constraint("Equal", 2, 3),
    Sketcher.Constraint("Diameter", 0, Q("1 in")),
    Sketcher.Constraint("DistanceY", 1, 3, 0, 3, 130.871102),
    Sketcher.Constraint("DistanceY", 2, 3, 3, 3, 130.871102),
    Sketcher.Constraint("DistanceY", -1, 1, 0, 3, 184.372421),
    Sketcher.Constraint("DistanceX", 1, 3, -1, 1, 186.294911),
    Sketcher.Constraint("DistanceY", -1, 1, 3, 3, 21.62648),
    Sketcher.Constraint("DistanceX", 0, 3, 2, 3, 71.11438),
    Sketcher.Constraint("DistanceX", 1, 3, 3, 3, 300.420069),
    Sketcher.Constraint("DistanceX", 0, 3, -1, 1, 71.642067),
])
pocket1 = doc.addObject("PartDesign::Pocket", "Pocket")
body.addObject(pocket1)
pocket1.Profile = sketch2
pocket1.Length = Q("0.2 in")
pocket1.Reversed = True

# Sketch on XY plane
sketch3 = doc.addObject("Sketcher::SketchObject", "Sketch002")
body.addObject(sketch3)
sketch3.AttachmentSupport = (doc.XY_Plane, [""])
sketch3.MapMode = "FlatFace"
sketch3.addGeometry([
    Part.LineSegment(V(91.9, 22.1, 0), V(94, 23, 0)),  # 0
    Part.ArcOfCircle(Part.Circle(V(92.4, 26.5, 0), V(0, 0, 1), 3.8), math.radians(-67), math.radians(56)),  # 1
    Part.LineSegment(V(94.6, 29.7, 0), V(93.3, 30.5, 0)),  # 2
    Part.ArcOfCircle(Part.Circle(V(92.1, 28.6, 0), V(0, 0, 1), 2.3), math.radians(56), math.radians(146)),  # 3
    Part.LineSegment(V(90.2, 29.9, 0), V(88.3, 27.2, 0)),  # 4
    Part.ArcOfCircle(Part.Circle(V(90.2, 25.9, 0), V(0, 0, 1), 2.3), math.radians(146), math.radians(203)),  # 5
    Part.LineSegment(V(88.1, 25, 0), V(88.9, 23.3, 0)),  # 6
    Part.ArcOfCircle(Part.Circle(V(91, 24.2, 0), V(0, 0, 1), 2.3), math.radians(-157), math.radians(-67)),  # 7
    Part.ArcOfCircle(Part.Circle(V(-63.7, 163.3, 0), V(0, 0, 1), 3.8), math.radians(41), math.radians(164)),  # 8
    Part.LineSegment(V(-67.4, 164.4, 0), V(-68, 162.2, 0)),  # 9
    Part.ArcOfCircle(Part.Circle(V(-65.8, 161.6, 0), V(0, 0, 1), 2.3), math.radians(164), math.radians(254)),  # 10
    Part.LineSegment(V(-66.5, 159.4, 0), V(-64.7, 158.9, 0)),  # 11
    Part.ArcOfCircle(Part.Circle(V(-64.1, 161.1, 0), V(0, 0, 1), 2.3), math.radians(-106), math.radians(-49)),  # 12
    Part.LineSegment(V(-62.6, 159.3, 0), V(-60.1, 161.5, 0)),  # 13
    Part.ArcOfCircle(Part.Circle(V(-61.6, 163.2, 0), V(0, 0, 1), 2.3), math.radians(-49), math.radians(41)),  # 14
    Part.LineSegment(V(-59.9, 164.7, 0), V(-60.9, 165.9, 0)),  # 15
], False)
sketch3.addConstraint([
    Sketcher.Constraint("Tangent", 0, 2, 1, 1),
    Sketcher.Constraint("Tangent", 1, 2, 2, 1),
    Sketcher.Constraint("Tangent", 2, 2, 3, 1),
    Sketcher.Constraint("Tangent", 3, 2, 4, 1),
    Sketcher.Constraint("Tangent", 4, 2, 5, 1),
    Sketcher.Constraint("Tangent", 5, 2, 6, 1),
    Sketcher.Constraint("Tangent", 6, 2, 7, 1),
    Sketcher.Constraint("Tangent", 7, 2, 0, 1),
    Sketcher.Constraint("Tangent", 8, 2, 9, 1),
    Sketcher.Constraint("Tangent", 9, 2, 10, 1),
    Sketcher.Constraint("Tangent", 10, 2, 11, 1),
    Sketcher.Constraint("Tangent", 11, 2, 12, 1),
    Sketcher.Constraint("Tangent", 12, 2, 13, 1),
    Sketcher.Constraint("Tangent", 13, 2, 14, 1),
    Sketcher.Constraint("Tangent", 14, 2, 15, 1),
    Sketcher.Constraint("Tangent", 15, 2, 8, 1),
    Sketcher.Constraint("Equal", 3, 5),
    Sketcher.Constraint("Equal", 5, 7),
    Sketcher.Constraint("Equal", 1, 8),
    Sketcher.Constraint("Equal", 7, 10),
    Sketcher.Constraint("Equal", 10, 12),
    Sketcher.Constraint("Equal", 12, 14),
    Sketcher.Constraint("Perpendicular", 2, 4),
    Sketcher.Constraint("Perpendicular", 0, 6),
    Sketcher.Constraint("Perpendicular", 9, 11),
    Sketcher.Constraint("Perpendicular", 13, 15),
    Sketcher.Constraint("Equal", 0, 9),
    Sketcher.Constraint("Equal", 6, 11),
    Sketcher.Constraint("Equal", 4, 13),
    Sketcher.Constraint("Radius", 1, Q("0.15 in")),
    Sketcher.Constraint("Radius", 3, Q("0.09 in")),
    Sketcher.Constraint("Distance", 0, 2.275801),
    Sketcher.Constraint("DistanceX", -1, 1, 1, 2, 94.5706),
    Sketcher.Constraint("DistanceX", 12, 3, 3, 3, 156.122898),
    Sketcher.Constraint("DistanceX", 12, 3, 1, 3, 156.5156),
    Sketcher.Constraint("DistanceY", 0, 2, 3, 3, 5.598101),
    Sketcher.Constraint("DistanceX", 9, 2, 10, 2, 1.581098),
    Sketcher.Constraint("DistanceY", 12, 2, 10, 2, 0.0108),
    Sketcher.Constraint("DistanceY", -1, 1, 1, 3, 26.495029),
    Sketcher.Constraint("DistanceY", -1, 1, 10, 3, 161.556919),
])
pad2 = doc.addObject("PartDesign::Pad", "Pad001")
body.addObject(pad2)
pad2.Profile = sketch3
pad2.Length = Q("0.1 in")

doc.recompute()
